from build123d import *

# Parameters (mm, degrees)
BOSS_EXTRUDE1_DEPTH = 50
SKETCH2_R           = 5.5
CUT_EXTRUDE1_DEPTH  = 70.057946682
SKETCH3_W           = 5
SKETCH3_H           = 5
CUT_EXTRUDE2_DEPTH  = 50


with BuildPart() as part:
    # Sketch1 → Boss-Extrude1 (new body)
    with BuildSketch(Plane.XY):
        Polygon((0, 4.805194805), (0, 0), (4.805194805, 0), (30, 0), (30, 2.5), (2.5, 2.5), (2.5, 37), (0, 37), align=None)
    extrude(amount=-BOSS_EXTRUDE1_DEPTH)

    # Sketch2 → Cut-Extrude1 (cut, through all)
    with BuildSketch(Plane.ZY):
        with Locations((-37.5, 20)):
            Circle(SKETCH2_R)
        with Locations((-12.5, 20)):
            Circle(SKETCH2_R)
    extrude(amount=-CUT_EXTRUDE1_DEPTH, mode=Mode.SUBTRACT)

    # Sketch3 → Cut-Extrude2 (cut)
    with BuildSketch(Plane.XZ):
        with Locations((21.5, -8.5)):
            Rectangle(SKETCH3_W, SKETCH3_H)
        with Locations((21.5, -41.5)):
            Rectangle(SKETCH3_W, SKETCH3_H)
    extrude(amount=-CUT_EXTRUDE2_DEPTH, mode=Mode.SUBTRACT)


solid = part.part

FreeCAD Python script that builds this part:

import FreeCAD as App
import Part
import Sketcher
Q = App.Units.Quantity

doc = App.newDocument("Part")
body = doc.addObject("PartDesign::Body", "Body")

sketch1 = body.newObject("Sketcher::SketchObject", "Sketch")
sketch1.AttachmentSupport = (doc.getObject("XY_Plane"), [""])
sketch1.MapMode = "FlatFace"
sketch1.addGeometry([
    Part.LineSegment(App.Vector(0, 0, 0), App.Vector(30, 0, 0)),
    Part.LineSegment(App.Vector(30, 0, 0), App.Vector(30, 2.5, 0)),
    Part.LineSegment(App.Vector(30, 2.5, 0), App.Vector(2.5, 2.5, 0)),
    Part.LineSegment(App.Vector(2.5, 2.5, 0), App.Vector(2.5, 37, 0)),
    Part.LineSegment(App.Vector(2.5, 37, 0), App.Vector(0, 37, 0)),
    Part.LineSegment(App.Vector(0, 37, 0), App.Vector(0, 0, 0)),
], False)
sketch1.addConstraint([
    Sketcher.Constraint("Coincident", 0, 2, 1, 1),
    Sketcher.Constraint("Coincident", 1, 2, 2, 1),
    Sketcher.Constraint("Coincident", 2, 2, 3, 1),
    Sketcher.Constraint("Coincident", 3, 2, 4, 1),
    Sketcher.Constraint("Coincident", 4, 2, 5, 1),
    Sketcher.Constraint("Coincident", 5, 2, 0, 1),
    Sketcher.Constraint("Horizontal", 0),
    Sketcher.Constraint("Vertical", 1),
    Sketcher.Constraint("Horizontal", 2),
    Sketcher.Constraint("Vertical", 3),
    Sketcher.Constraint("Horizontal", 4),
    Sketcher.Constraint("Vertical", 5),
    Sketcher.Constraint("Coincident", 5, 2, -1, 1),
    Sketcher.Constraint("Equal", 4, 1),
    Sketcher.Constraint("DistanceX", 0, 1, 0, 2, Q("30 mm")),
    Sketcher.Constraint("DistanceY", 5, 2, 5, 1, Q("37 mm")),
    Sketcher.Constraint("DistanceX", 2, 2, 2, 1, Q("27.5 mm")),
])
pad1 = body.newObject("PartDesign::Pad", "Pad")
pad1.Profile = sketch1
pad1.Length = 50
pad1.Reversed = True

sketch2 = body.newObject("Sketcher::SketchObject", "Sketch001")
sketch2.AttachmentSupport = (doc.getObject("YZ_Plane"), [""])
sketch2.MapMode = "FlatFace"
sketch2.addGeometry([
    Part.Circle(App.Vector(20, -37.5, 0), App.Vector(0, 0, 1), 5.5),
    Part.Circle(App.Vector(20, -12.5, 0), App.Vector(0, 0, 1), 5.5),
], False)
sketch2.addConstraint([
    Sketcher.Constraint("Equal", 0, 1),
    Sketcher.Constraint("Vertical", 0, 3, 1, 3),
    Sketcher.Constraint("Diameter", 0, Q("11 mm")),
    Sketcher.Constraint("DistanceX", -1, 1, 0, 3, Q("20 mm")),
    Sketcher.Constraint("DistanceY", 0, 3, 1, 3, Q("25 mm")),
    Sketcher.Constraint("DistanceY", 0, 3, -1, 1, Q("37.5 mm")),
])
pocket1 = body.newObject("PartDesign::Pocket", "Pocket")
pocket1.Profile = sketch2
pocket1.Type = "ThroughAll"
pocket1.Reversed = True

sketch3 = body.newObject("Sketcher::SketchObject", "Sketch002")
sketch3.AttachmentSupport = (doc.getObject("XZ_Plane"), [""])
sketch3.MapMode = "FlatFace"
sketch3.addGeometry([
    Part.LineSegment(App.Vector(19, -6, 0), App.Vector(19, -11, 0)),
    Part.LineSegment(App.Vector(19, -11, 0), App.Vector(24, -11, 0)),
    Part.LineSegment(App.Vector(24, -11, 0), App.Vector(24, -6, 0)),
    Part.LineSegment(App.Vector(24, -6, 0), App.Vector(19, -6, 0)),
    Part.LineSegment(App.Vector(19, -39, 0), App.Vector(19, -44, 0)),
    Part.LineSegment(App.Vector(19, -44, 0), App.Vector(24, -44, 0)),
    Part.LineSegment(App.Vector(24, -44, 0), App.Vector(24, -39, 0)),
    Part.LineSegment(App.Vector(24, -39, 0), App.Vector(19, -39, 0)),
], False)
sketch3.addConstraint([
    Sketcher.Constraint("Coincident", 0, 2, 1, 1),
    Sketcher.Constraint("Coincident", 1, 2, 2, 1),
    Sketcher.Constraint("Coincident", 2, 2, 3, 1),
    Sketcher.Constraint("Coincident", 3, 2, 0, 1),
    Sketcher.Constraint("Coincident", 4, 2, 5, 1),
    Sketcher.Constraint("Coincident", 5, 2, 6, 1),
    Sketcher.Constraint("Coincident", 6, 2, 7, 1),
    Sketcher.Constraint("Coincident", 7, 2, 4, 1),
    Sketcher.Constraint("Vertical", 0),
    Sketcher.Constraint("Horizontal", 1),
    Sketcher.Constraint("Vertical", 2),
    Sketcher.Constraint("Horizontal", 3),
    Sketcher.Constraint("Vertical", 4),
    Sketcher.Constraint("Horizontal", 5),
    Sketcher.Constraint("Vertical", 6),
    Sketcher.Constraint("Horizontal", 7),
    Sketcher.Constraint("Vertical", 3, 2, 4, 2),
    Sketcher.Constraint("Vertical", 2, 2, 5, 2),
    Sketcher.Constraint("Equal", 7, 0),
    Sketcher.Constraint("Equal", 2, 4),
    Sketcher.Constraint("DistanceX", 1, 1, 1, 2, Q("5 mm")),
    Sketcher.Constraint("DistanceX", -1, 1, 0, 2, Q("19 mm")),
    Sketcher.Constraint("DistanceY", 0, 2, -1, 1, Q("11 mm")),
    Sketcher.Constraint("DistanceY", 4, 2, -1, 1, Q("44 mm")),
])
pocket2 = body.newObject("PartDesign::Pocket", "Pocket001")
pocket2.Profile = sketch3
pocket2.Length = 50

doc.recompute()
